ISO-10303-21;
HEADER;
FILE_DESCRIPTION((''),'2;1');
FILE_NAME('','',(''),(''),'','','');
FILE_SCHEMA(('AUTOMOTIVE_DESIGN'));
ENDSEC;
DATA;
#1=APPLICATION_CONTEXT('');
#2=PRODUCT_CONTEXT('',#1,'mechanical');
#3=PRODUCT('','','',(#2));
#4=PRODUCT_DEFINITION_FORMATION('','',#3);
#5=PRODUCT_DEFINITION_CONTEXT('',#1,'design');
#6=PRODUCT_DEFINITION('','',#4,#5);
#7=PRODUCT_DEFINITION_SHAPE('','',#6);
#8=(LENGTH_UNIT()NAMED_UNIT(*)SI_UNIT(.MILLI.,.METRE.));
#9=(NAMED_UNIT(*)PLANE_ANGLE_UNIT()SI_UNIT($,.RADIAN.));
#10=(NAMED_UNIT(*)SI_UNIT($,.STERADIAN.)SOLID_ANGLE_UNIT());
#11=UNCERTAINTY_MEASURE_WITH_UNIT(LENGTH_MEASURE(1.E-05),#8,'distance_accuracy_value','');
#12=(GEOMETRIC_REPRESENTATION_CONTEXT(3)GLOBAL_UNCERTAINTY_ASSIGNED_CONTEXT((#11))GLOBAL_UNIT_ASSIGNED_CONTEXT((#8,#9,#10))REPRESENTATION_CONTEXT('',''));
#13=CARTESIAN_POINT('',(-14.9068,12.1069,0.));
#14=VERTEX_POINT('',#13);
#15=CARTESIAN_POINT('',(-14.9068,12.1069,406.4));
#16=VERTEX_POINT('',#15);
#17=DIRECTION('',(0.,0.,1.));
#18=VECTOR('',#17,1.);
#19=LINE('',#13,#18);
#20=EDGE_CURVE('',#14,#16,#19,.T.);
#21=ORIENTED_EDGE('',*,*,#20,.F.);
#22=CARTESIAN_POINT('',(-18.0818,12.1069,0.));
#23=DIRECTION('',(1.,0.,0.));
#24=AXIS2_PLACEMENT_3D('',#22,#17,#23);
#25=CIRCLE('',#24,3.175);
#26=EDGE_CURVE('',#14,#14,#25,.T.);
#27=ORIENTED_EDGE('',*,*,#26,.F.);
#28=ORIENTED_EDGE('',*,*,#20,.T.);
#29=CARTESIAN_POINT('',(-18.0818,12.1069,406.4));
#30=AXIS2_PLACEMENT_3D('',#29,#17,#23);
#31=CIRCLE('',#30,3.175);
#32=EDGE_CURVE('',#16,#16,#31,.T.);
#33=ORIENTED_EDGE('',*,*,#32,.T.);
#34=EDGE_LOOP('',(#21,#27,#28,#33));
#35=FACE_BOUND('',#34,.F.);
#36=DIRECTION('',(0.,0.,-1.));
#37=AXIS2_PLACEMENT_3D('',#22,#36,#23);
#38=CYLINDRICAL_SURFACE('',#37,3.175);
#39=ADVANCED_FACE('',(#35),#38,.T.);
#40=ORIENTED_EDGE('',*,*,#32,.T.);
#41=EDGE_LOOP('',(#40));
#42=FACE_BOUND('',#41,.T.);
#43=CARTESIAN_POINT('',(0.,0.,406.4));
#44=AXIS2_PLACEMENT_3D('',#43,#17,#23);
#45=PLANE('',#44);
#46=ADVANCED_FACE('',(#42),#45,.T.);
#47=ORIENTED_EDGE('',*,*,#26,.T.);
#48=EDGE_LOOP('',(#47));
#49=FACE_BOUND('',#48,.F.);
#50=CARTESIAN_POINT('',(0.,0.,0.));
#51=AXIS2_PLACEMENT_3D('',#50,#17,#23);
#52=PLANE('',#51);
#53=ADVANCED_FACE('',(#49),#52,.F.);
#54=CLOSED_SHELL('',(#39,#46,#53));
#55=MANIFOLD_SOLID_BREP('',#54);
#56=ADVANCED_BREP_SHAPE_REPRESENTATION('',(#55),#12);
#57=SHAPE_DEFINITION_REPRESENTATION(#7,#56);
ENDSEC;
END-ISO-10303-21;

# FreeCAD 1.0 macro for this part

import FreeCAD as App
import Part
import Sketcher
Q = App.Units.Quantity

doc = App.newDocument("Part")
body = doc.addObject("PartDesign::Body", "Body")

# Sketch on XY plane
sketch1 = body.newObject("Sketcher::SketchObject", "Sketch")
sketch1.AttachmentSupport = (doc.getObject("XY_Plane"), [""])
sketch1.MapMode = "FlatFace"
sketch1.addGeometry(Part.Circle(App.Vector(-18.1, 12.1, 0), App.Vector(0, 0, 1), 3.2), False)
sketch1.addConstraint(Sketcher.Constraint("Diameter", 0, Q("0.25 in")))
sketch1.addConstraint(Sketcher.Constraint("DistanceX", 0, 3, -1, 1, 18.0818))
sketch1.addConstraint(Sketcher.Constraint("DistanceY", -1, 1, 0, 3, 12.107))
pad1 = body.newObject("PartDesign::Pad", "Pad")
pad1.Profile = sketch1
pad1.Length = Q("16 in")

doc.recompute()
